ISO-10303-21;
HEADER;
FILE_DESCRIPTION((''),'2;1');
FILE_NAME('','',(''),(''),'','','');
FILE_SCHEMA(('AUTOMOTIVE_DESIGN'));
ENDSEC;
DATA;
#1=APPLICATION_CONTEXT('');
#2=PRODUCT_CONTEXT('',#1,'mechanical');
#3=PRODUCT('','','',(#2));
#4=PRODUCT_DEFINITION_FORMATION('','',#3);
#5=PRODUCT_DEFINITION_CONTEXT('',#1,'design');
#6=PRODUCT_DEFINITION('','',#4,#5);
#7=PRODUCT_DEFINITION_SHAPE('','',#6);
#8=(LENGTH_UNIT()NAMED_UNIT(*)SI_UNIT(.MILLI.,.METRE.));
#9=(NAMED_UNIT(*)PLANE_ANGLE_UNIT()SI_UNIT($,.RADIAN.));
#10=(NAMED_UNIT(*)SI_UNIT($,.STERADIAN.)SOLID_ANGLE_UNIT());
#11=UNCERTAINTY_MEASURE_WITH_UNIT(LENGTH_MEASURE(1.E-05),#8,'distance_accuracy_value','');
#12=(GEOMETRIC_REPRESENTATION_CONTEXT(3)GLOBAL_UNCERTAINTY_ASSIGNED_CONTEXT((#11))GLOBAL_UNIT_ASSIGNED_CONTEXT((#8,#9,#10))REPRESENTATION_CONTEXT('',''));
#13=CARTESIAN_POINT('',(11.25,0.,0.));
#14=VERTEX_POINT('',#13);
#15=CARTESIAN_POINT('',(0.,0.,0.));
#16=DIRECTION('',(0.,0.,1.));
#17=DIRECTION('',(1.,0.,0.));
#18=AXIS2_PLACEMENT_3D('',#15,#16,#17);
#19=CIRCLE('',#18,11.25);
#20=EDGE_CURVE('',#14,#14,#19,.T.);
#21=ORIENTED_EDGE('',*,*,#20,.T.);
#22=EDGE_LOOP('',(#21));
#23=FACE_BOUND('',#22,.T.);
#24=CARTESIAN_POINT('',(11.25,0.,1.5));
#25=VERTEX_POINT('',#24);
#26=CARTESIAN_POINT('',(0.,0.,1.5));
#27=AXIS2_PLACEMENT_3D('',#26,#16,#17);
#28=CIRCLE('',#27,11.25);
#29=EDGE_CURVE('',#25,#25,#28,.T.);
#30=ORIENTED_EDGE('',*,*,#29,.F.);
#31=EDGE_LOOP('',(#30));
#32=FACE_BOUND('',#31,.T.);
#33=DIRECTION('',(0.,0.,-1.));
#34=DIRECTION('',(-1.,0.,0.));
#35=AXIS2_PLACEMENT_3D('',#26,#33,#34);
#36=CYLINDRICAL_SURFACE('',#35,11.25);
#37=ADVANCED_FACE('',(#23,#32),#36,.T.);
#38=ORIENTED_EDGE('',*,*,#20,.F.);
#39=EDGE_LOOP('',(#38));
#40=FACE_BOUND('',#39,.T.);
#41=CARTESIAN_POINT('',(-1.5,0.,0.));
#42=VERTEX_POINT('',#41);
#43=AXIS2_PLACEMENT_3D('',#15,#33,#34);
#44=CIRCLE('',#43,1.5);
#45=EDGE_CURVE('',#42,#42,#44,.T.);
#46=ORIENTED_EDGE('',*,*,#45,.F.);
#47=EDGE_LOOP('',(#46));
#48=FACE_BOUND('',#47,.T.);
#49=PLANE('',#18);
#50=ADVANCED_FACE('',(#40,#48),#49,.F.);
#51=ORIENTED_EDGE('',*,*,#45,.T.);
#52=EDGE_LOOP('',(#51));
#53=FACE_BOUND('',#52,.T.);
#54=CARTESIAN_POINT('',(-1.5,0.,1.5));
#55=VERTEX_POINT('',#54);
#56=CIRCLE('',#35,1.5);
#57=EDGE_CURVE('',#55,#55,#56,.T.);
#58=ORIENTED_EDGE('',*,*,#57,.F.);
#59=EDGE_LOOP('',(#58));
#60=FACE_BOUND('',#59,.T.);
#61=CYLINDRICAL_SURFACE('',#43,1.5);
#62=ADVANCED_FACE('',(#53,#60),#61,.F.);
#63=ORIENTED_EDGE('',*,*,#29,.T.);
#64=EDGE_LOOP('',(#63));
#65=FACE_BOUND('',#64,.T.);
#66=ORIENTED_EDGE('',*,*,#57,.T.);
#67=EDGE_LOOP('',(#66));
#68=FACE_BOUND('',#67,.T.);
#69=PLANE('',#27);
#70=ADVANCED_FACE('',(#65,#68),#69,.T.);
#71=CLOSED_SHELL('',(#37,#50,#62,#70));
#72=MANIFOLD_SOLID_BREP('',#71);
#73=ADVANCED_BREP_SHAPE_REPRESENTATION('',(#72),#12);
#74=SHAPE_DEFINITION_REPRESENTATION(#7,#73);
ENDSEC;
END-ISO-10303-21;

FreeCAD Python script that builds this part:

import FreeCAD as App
import Part
import Sketcher
Q = App.Units.Quantity

doc = App.newDocument("Part")
body = doc.addObject("PartDesign::Body", "Body")

# Sketch on XY plane
sketch1 = body.newObject("Sketcher::SketchObject", "Sketch")
sketch1.AttachmentSupport = (doc.getObject("XY_Plane"), [""])
sketch1.MapMode = "FlatFace"
sketch1.addGeometry(Part.Circle(App.Vector(0, 0, 0), App.Vector(0, 0, 1), 11.25), False)
sketch1.addConstraint([
    Sketcher.Constraint("Coincident", 0, 3, -1, 1),
    Sketcher.Constraint("Diameter", 0, Q("22.5 mm")),
])
pad1 = body.newObject("PartDesign::Pad", "Pad")
pad1.Profile = sketch1
pad1.Length = 1.5

# Sketch on XZ plane
sketch2 = body.newObject("Sketcher::SketchObject", "Sketch001")
sketch2.AttachmentSupport = (doc.getObject("XZ_Plane"), [""])
sketch2.MapMode = "FlatFace"
sketch2.addGeometry([
    Part.LineSegment(App.Vector(0, 0, 0), App.Vector(0, 1.5, 0)),
    Part.LineSegment(App.Vector(0, 1.5, 0), App.Vector(1.5, 1.5, 0)),
    Part.LineSegment(App.Vector(1.5, 1.5, 0), App.Vector(1.5, 0, 0)),
    Part.LineSegment(App.Vector(1.5, 0, 0), App.Vector(0, 0, 0)),
], False)
sketch2.addConstraint([
    Sketcher.Constraint("Coincident", 0, 2, 1, 1),
    Sketcher.Constraint("Coincident", 1, 2, 2, 1),
    Sketcher.Constraint("Coincident", 2, 2, 3, 1),
    Sketcher.Constraint("Coincident", 3, 2, 0, 1),
    Sketcher.Constraint("Vertical", 0),
    Sketcher.Constraint("Horizontal", 1),
    Sketcher.Constraint("Vertical", 2),
    Sketcher.Constraint("Horizontal", 3),
    Sketcher.Constraint("Coincident", 3, 2, -1, 1),
    Sketcher.Constraint("Equal", 3, 0),
    Sketcher.Constraint("DistanceX", 1, 1, 1, 2, Q("1.5 mm")),
])
groove = body.newObject("PartDesign::Groove", "Groove")
groove.Profile = sketch2
groove.ReferenceAxis = (sketch2, ["V_Axis"])
groove.Angle = 360

doc.recompute()
